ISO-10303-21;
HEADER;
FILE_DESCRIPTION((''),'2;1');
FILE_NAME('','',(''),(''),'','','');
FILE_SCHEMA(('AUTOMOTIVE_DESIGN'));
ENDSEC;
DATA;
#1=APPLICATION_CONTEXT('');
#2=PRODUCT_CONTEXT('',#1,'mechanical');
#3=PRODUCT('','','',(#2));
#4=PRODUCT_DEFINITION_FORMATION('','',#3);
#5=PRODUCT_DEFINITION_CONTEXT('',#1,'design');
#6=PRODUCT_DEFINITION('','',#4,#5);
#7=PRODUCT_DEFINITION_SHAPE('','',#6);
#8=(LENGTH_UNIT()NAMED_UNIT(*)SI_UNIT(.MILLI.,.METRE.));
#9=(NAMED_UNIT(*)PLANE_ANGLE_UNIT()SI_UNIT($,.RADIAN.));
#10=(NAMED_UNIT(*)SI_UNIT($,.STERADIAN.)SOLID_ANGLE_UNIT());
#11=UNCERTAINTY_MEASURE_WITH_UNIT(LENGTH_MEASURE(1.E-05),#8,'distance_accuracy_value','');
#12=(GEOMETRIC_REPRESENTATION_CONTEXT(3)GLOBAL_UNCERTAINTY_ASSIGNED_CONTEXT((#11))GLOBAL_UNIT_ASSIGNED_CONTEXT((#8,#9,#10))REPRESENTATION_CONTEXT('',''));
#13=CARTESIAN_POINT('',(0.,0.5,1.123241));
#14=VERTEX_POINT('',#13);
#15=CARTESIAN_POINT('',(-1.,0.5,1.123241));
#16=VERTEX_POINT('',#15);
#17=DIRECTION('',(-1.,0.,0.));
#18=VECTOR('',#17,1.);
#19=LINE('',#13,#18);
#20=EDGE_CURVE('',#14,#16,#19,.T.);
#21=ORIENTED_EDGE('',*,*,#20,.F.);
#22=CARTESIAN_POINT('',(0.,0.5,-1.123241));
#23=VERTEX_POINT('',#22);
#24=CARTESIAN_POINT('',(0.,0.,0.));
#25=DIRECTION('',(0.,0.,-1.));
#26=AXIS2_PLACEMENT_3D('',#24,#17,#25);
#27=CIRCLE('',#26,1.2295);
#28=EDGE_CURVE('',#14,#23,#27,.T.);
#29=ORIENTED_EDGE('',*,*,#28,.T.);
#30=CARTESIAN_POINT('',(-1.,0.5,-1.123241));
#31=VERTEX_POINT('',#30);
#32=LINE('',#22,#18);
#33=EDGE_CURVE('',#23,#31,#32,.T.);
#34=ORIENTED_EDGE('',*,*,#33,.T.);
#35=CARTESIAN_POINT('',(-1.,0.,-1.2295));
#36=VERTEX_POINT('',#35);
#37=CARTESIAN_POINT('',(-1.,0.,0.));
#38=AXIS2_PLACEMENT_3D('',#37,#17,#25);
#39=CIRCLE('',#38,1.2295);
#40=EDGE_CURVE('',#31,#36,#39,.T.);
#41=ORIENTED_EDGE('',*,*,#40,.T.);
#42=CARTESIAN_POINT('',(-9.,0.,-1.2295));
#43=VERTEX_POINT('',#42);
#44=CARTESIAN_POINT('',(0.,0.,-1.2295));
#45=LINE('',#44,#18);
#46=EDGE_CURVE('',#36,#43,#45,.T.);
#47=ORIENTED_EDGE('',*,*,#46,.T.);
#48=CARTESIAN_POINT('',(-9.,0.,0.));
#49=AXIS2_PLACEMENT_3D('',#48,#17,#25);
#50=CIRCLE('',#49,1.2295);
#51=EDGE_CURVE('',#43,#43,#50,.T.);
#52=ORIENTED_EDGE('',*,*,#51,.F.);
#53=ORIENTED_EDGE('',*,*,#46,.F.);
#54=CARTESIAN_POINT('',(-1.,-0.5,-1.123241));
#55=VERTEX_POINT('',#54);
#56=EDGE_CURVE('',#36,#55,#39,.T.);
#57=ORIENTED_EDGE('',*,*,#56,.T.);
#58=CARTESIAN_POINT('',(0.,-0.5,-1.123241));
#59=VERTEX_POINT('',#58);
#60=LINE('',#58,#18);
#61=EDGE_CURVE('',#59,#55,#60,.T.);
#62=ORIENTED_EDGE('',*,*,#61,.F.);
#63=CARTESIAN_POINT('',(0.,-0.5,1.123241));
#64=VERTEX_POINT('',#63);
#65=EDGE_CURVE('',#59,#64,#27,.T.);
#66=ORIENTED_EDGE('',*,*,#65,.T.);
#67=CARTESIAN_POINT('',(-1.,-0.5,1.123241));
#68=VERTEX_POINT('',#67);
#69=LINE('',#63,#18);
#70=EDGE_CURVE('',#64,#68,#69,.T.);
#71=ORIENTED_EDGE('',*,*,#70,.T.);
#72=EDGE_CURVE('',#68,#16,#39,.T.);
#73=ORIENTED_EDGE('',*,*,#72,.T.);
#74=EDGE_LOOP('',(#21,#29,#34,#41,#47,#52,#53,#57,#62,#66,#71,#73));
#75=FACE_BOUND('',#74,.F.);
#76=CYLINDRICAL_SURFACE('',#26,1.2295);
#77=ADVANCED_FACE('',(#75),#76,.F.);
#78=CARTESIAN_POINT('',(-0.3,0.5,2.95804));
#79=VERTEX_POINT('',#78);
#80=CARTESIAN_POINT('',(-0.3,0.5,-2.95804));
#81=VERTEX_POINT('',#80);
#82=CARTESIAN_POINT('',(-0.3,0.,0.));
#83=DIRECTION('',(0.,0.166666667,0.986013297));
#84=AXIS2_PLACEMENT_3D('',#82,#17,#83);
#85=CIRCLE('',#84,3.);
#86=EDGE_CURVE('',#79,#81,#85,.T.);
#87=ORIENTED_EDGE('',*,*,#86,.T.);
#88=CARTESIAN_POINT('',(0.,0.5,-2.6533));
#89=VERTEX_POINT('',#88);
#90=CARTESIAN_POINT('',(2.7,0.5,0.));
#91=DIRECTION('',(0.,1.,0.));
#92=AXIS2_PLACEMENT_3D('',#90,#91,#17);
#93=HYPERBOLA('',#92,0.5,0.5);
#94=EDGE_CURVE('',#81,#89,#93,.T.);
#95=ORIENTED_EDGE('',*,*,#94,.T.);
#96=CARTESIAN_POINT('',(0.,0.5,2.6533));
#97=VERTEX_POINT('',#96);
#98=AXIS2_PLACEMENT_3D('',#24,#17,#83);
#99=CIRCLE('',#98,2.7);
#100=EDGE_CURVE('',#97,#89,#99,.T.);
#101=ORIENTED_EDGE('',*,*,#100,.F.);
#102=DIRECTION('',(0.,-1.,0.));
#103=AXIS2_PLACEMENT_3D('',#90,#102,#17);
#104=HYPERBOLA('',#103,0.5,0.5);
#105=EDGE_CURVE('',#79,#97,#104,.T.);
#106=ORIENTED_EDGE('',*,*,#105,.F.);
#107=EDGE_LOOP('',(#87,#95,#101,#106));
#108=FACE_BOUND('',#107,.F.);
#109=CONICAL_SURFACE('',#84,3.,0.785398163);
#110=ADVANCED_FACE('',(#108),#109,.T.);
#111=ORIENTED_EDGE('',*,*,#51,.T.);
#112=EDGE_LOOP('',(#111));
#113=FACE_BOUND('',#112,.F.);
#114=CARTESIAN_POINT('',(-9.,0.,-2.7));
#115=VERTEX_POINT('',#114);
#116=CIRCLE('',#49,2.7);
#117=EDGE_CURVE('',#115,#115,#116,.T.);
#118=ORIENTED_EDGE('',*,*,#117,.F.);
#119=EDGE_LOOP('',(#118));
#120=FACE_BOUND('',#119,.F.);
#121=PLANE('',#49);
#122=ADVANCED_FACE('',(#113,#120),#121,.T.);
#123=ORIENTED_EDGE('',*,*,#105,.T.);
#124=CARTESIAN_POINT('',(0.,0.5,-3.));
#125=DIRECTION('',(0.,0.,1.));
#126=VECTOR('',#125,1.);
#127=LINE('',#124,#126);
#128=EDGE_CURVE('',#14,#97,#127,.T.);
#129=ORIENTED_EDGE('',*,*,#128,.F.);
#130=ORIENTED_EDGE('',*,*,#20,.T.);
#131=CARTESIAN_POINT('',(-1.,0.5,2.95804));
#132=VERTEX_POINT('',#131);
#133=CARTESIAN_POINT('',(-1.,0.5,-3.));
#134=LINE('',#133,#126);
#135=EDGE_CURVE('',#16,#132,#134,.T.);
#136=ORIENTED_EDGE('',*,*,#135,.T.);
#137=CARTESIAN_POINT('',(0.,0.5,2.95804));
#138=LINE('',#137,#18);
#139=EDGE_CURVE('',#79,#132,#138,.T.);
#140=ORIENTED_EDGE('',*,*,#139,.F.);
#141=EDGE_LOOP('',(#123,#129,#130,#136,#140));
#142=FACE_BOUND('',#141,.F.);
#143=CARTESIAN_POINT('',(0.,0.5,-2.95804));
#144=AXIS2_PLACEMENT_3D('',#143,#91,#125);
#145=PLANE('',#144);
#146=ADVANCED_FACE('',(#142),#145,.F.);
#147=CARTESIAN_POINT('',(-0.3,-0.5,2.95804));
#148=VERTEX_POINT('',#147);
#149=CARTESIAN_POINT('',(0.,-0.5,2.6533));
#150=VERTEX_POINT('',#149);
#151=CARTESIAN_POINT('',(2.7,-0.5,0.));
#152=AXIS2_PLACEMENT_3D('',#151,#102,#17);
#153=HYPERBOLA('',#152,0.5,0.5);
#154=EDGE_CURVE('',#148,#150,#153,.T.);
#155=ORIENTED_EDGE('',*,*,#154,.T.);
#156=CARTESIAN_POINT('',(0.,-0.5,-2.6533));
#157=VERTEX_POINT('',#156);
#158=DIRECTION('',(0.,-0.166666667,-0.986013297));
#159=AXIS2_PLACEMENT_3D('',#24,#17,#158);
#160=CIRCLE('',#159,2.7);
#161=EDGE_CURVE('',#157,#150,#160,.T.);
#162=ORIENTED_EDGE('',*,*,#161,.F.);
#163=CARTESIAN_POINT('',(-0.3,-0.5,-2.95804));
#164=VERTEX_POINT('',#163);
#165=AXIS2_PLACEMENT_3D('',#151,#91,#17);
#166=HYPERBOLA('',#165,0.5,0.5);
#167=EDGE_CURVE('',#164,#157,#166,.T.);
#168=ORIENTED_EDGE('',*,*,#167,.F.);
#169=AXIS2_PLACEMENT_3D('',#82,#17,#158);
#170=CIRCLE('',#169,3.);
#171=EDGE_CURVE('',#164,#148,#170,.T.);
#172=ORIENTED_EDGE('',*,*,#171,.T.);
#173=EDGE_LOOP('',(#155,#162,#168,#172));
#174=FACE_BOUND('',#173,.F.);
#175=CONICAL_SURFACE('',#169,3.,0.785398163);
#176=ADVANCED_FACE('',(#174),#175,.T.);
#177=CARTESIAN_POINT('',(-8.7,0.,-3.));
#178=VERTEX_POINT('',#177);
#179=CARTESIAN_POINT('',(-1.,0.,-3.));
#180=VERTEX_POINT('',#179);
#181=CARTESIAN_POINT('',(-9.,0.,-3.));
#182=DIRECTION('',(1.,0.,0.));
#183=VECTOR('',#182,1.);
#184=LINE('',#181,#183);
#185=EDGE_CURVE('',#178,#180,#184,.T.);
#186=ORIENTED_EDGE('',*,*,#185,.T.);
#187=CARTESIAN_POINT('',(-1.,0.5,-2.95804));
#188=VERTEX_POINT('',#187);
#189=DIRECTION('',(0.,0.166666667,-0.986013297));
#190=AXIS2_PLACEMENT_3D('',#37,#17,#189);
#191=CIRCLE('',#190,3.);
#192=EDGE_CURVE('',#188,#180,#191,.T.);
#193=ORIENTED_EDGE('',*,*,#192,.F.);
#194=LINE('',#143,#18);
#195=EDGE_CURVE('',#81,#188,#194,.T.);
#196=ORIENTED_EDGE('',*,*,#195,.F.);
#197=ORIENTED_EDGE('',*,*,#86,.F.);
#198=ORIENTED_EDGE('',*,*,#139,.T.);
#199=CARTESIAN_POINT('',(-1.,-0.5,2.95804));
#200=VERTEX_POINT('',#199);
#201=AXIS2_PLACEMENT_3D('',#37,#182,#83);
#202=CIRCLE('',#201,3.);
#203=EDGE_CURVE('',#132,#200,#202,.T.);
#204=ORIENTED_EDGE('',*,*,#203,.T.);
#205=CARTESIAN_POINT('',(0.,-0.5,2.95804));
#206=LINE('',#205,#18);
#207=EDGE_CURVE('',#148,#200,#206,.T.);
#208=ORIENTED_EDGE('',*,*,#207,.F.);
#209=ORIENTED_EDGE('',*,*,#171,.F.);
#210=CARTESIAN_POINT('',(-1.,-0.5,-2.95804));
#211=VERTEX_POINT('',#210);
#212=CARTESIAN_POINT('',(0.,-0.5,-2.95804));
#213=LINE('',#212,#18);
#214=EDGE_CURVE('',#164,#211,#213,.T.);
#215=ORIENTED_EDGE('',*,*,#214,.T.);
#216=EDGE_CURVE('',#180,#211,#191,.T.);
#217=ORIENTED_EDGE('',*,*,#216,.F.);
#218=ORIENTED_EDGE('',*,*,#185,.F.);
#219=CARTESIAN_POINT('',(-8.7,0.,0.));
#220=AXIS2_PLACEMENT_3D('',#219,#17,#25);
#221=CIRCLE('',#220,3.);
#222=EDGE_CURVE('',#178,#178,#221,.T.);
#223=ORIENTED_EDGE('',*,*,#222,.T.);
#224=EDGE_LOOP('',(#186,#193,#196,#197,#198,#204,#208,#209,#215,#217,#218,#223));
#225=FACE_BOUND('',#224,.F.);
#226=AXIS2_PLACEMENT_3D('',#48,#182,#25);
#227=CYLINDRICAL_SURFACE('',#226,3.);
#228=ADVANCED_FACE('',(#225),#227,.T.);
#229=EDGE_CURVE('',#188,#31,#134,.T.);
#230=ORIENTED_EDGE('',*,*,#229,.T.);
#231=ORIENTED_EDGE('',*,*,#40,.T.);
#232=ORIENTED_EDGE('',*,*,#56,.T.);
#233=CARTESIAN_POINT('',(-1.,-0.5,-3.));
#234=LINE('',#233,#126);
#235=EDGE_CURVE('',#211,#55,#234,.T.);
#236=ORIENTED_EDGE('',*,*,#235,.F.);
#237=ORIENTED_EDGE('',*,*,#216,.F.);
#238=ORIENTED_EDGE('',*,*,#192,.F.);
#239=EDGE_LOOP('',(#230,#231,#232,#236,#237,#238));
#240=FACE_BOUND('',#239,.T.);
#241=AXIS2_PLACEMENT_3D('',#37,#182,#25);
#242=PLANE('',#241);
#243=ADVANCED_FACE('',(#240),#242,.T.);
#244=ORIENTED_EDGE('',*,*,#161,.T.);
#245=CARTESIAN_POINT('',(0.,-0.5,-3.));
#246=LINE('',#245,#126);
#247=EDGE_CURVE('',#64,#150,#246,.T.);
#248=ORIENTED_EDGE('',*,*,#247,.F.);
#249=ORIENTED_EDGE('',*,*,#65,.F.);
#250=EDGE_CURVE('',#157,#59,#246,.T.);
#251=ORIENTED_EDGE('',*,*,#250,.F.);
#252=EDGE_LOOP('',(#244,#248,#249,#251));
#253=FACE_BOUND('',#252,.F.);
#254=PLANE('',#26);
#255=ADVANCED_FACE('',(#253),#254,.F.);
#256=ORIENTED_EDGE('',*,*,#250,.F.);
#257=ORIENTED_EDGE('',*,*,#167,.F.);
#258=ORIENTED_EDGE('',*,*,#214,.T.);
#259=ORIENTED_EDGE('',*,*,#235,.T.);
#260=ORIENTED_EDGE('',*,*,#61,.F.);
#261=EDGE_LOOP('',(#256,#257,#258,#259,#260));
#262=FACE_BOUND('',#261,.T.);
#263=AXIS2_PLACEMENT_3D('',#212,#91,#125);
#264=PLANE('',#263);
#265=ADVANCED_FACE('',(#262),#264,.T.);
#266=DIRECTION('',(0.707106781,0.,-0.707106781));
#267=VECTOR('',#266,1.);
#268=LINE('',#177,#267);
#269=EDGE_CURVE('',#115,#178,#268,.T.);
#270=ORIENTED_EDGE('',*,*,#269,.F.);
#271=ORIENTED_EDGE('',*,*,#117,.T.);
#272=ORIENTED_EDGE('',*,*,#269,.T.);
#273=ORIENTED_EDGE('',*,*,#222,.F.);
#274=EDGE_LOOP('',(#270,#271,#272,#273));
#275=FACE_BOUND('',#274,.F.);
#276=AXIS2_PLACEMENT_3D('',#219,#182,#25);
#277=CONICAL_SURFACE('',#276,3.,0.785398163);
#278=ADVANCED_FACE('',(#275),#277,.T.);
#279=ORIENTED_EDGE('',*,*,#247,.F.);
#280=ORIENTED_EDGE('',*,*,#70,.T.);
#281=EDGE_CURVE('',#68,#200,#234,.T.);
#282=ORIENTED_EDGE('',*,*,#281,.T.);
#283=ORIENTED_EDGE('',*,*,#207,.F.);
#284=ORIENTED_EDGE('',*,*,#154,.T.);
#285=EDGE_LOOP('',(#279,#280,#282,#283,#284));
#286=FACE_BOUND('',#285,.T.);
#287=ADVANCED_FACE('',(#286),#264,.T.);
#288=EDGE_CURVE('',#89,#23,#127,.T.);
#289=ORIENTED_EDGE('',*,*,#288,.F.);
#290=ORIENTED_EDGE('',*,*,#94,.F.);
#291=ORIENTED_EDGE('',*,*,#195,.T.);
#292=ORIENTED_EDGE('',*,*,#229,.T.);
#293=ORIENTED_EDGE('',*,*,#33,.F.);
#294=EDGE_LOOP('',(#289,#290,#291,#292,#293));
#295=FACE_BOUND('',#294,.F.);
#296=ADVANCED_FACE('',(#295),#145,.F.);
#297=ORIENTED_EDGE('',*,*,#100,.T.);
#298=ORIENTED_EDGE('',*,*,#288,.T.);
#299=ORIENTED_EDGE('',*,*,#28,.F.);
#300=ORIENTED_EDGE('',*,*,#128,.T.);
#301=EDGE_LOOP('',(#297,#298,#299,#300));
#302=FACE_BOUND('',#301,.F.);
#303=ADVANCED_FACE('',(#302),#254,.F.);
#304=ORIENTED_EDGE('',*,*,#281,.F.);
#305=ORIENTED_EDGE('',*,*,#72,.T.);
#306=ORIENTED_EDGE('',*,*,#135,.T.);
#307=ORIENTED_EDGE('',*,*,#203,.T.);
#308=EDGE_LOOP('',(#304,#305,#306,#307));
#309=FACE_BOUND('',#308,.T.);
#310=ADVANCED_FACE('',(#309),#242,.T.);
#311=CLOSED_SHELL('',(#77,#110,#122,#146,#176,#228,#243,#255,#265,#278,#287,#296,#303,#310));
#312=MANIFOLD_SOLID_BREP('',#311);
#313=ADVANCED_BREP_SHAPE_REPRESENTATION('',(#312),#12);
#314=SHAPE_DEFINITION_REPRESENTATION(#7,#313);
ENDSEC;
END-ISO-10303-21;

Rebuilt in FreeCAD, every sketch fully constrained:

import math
import FreeCAD as App
import Part
import Sketcher

V = App.Vector
Q = App.Units.Quantity


def edges_at(feature, points):
    """Names of the edges that pass closest to the given points."""
    edges = feature.Shape.Edges
    near = lambda p: min(range(len(edges)), key=lambda i: edges[i].distToShape(Part.Vertex(*p))[0])
    return sorted({f"Edge{near(p) + 1}" for p in points})


def add_polygon(sketch, points):
    """Adds a closed chain of lines whose ends are joined by coincident constraints."""
    first, n = sketch.GeometryCount, len(points)
    for a, b in zip(points, points[1:] + points[:1]):
        sketch.addGeometry(Part.LineSegment(App.Vector(*a, 0), App.Vector(*b, 0)), False)
    for i in range(n):
        sketch.addConstraint(Sketcher.Constraint("Coincident", first + i, 2, first + (i + 1) % n, 1))

doc = App.newDocument("Part")
params = doc.addObject("Spreadsheet::Sheet", "Params")
for row, (alias, value) in enumerate([
    ("sketch1_width", "9 mm"),
    ("sketch1_height", "3 mm"),
    ("revolution_angle", "360 deg"),
    ("hole_diameter", "2.459 mm"),
    ("sketch3_radius", "3 mm"),
    ("pocket1_length", "1 mm"),
    ("chamfer_size", "0.3 mm"),
], start=1):
    params.set(f"A{row}", alias)
    params.set(f"B{row}", "=" + value)
    params.setAlias(f"B{row}", alias)

body = doc.addObject("PartDesign::Body", "Body")

# Sketch on XZ plane
sketch1 = doc.addObject("Sketcher::SketchObject", "Sketch")
body.addObject(sketch1)
sketch1.AttachmentSupport = (doc.XZ_Plane, [""])
sketch1.MapMode = "FlatFace"
add_polygon(sketch1, [(-9, 0), (0, 0), (0, -3), (-9, -3)])  # lines 0-3
sketch1.addConstraint([
    Sketcher.Constraint("Horizontal", 0),
    Sketcher.Constraint("Vertical", 1),
    Sketcher.Constraint("Horizontal", 2),
    Sketcher.Constraint("Vertical", 3),
    Sketcher.Constraint("Coincident", 0, 2, -1, 1),
    Sketcher.Constraint("DistanceX", 0, 1, 0, 2, Q("9 mm")),
    Sketcher.Constraint("DistanceY", 1, 2, 1, 1, Q("3 mm")),
])
sketch1.setExpression("Constraints[9]", "Params.sketch1_width")
sketch1.setExpression("Constraints[10]", "Params.sketch1_height")
revolution = doc.addObject("PartDesign::Revolution", "Revolution")
body.addObject(revolution)
revolution.Profile = sketch1
revolution.ReferenceAxis = (sketch1, ["H_Axis"])
revolution.setExpression("Angle", "Params.revolution_angle")

# Sketch on YZ plane
sketch2 = doc.addObject("Sketcher::SketchObject", "Sketch001")
body.addObject(sketch2)
sketch2.AttachmentSupport = (doc.YZ_Plane, [""])
sketch2.MapMode = "FlatFace"
sketch2.addGeometry(Part.Circle(V(0, 0, 0), V(0, 0, 1), 1.2295), False)
sketch2.addConstraint([
    Sketcher.Constraint("Coincident", 0, 3, -1, 1),
    Sketcher.Constraint("Diameter", 0, Q("2.459 mm")),
])
doc.recompute()
hole = doc.addObject("PartDesign::Hole", "Hole")
body.addObject(hole)
hole.Profile = sketch2
hole.ThreadType = "None"
hole.setExpression("Diameter", "Params.hole_diameter")
hole.DepthType = "ThroughAll"

# Sketch on YZ plane
sketch3 = doc.addObject("Sketcher::SketchObject", "Sketch002")
body.addObject(sketch3)
sketch3.AttachmentSupport = (doc.YZ_Plane, [""])
sketch3.MapMode = "FlatFace"
sketch3.addGeometry([
    Part.ArcOfCircle(Part.Circle(V(0, 0, 0), V(0, 0, 1), 3), math.radians(80.405932), math.radians(99.594068)),
    Part.LineSegment(V(-0.5, 2.95804, 0), V(-0.5, -2.95804, 0)),
    Part.ArcOfCircle(Part.Circle(V(0, 0, 0), V(0, 0, 1), 3), math.radians(-99.594068), math.radians(-80.405932)),
    Part.LineSegment(V(0.5, -2.95804, 0), V(0.5, 2.95804, 0)),
], False)
sketch3.addConstraint([
    Sketcher.Constraint("Coincident", 0, 2, 1, 1),
    Sketcher.Constraint("Coincident", 1, 2, 2, 1),
    Sketcher.Constraint("Coincident", 2, 2, 3, 1),
    Sketcher.Constraint("Coincident", 3, 2, 0, 1),
    Sketcher.Constraint("Vertical", 1),
    Sketcher.Constraint("Vertical", 3),
    Sketcher.Constraint("Coincident", 0, 3, -1, 1),
    Sketcher.Constraint("Coincident", 2, 3, -1, 1),
    Sketcher.Constraint("Equal", 0, 2),
    Sketcher.Constraint("Horizontal", 1, 2, 2, 2),
    Sketcher.Constraint("Radius", 0, Q("3 mm")),
    Sketcher.Constraint("DistanceX", 0, 2, -1, 1, Q("0.5 mm")),
])
sketch3.setExpression("Constraints[10]", "Params.sketch3_radius")
pocket1 = doc.addObject("PartDesign::Pocket", "Pocket")
body.addObject(pocket1)
pocket1.Profile = sketch3
pocket1.setExpression("Length", "Params.pocket1_length")
doc.recompute()

chamfer = doc.addObject("PartDesign::Chamfer", "Chamfer")
body.addObject(chamfer)
chamfer.Base = (pocket1, edges_at(pocket1, [(-9, 0, 3), (0, 3, 0), (0, -3, 0)]))
chamfer.setExpression("Size", "Params.chamfer_size")

doc.recompute()
